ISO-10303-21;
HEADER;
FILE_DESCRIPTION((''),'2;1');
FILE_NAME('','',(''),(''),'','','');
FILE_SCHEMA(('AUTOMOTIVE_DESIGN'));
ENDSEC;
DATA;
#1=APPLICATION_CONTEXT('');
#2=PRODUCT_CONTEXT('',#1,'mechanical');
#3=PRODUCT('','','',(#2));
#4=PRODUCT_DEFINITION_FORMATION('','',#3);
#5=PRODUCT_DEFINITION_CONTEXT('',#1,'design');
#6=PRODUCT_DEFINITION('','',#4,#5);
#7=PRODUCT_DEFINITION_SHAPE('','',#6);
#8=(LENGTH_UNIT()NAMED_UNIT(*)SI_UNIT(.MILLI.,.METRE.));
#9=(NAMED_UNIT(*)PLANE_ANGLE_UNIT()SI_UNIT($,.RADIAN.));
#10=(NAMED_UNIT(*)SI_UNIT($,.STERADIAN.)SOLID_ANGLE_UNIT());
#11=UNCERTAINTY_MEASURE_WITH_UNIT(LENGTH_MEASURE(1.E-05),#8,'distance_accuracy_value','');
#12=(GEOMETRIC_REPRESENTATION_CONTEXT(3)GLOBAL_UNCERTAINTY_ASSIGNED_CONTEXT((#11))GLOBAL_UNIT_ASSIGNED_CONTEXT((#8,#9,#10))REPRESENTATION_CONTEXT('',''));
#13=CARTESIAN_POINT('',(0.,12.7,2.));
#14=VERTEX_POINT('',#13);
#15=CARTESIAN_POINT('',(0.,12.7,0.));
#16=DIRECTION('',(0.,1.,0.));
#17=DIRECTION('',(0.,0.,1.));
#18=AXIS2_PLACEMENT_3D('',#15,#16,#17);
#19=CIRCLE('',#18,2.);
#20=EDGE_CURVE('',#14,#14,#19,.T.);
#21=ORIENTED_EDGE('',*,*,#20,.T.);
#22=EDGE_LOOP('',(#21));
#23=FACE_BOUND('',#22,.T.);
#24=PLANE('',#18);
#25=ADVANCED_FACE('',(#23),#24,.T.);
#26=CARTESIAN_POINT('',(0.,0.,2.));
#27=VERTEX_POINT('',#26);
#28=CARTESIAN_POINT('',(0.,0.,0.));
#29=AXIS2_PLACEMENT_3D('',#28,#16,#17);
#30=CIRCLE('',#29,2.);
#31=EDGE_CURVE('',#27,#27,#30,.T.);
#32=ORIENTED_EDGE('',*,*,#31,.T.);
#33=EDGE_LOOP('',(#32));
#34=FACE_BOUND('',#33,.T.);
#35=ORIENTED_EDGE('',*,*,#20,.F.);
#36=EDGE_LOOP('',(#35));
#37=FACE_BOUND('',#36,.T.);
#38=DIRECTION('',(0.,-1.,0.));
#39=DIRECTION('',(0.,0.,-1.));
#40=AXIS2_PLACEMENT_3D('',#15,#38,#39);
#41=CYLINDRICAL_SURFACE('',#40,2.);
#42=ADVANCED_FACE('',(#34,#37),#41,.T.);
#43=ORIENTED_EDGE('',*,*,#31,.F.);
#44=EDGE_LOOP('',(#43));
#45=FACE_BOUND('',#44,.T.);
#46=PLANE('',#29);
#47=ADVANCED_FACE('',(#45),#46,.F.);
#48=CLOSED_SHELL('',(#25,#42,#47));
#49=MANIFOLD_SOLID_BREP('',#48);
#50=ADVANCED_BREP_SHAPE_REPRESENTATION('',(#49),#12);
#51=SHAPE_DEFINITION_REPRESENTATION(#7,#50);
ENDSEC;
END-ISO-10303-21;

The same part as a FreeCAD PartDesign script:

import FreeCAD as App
import Part
import Sketcher

V = App.Vector
Q = App.Units.Quantity

doc = App.newDocument("Part")
body = doc.addObject("PartDesign::Body", "Body")

sketch1 = body.newObject("Sketcher::SketchObject", "Sketch")
sketch1.AttachmentSupport = (doc.getObject("XZ_Plane"), [""])
sketch1.MapMode = "FlatFace"
sketch1.addGeometry(Part.Circle(V(0, 0, 0), V(0, 0, 1), 2), False)
sketch1.addConstraint([
    Sketcher.Constraint("Coincident", 0, 3, -1, 1),
    Sketcher.Constraint("Diameter", 0, Q("4 mm")),
])
pad1 = body.newObject("PartDesign::Pad", "Pad")
pad1.Profile = sketch1
pad1.Length = 12.7
pad1.Reversed = True

doc.recompute()
